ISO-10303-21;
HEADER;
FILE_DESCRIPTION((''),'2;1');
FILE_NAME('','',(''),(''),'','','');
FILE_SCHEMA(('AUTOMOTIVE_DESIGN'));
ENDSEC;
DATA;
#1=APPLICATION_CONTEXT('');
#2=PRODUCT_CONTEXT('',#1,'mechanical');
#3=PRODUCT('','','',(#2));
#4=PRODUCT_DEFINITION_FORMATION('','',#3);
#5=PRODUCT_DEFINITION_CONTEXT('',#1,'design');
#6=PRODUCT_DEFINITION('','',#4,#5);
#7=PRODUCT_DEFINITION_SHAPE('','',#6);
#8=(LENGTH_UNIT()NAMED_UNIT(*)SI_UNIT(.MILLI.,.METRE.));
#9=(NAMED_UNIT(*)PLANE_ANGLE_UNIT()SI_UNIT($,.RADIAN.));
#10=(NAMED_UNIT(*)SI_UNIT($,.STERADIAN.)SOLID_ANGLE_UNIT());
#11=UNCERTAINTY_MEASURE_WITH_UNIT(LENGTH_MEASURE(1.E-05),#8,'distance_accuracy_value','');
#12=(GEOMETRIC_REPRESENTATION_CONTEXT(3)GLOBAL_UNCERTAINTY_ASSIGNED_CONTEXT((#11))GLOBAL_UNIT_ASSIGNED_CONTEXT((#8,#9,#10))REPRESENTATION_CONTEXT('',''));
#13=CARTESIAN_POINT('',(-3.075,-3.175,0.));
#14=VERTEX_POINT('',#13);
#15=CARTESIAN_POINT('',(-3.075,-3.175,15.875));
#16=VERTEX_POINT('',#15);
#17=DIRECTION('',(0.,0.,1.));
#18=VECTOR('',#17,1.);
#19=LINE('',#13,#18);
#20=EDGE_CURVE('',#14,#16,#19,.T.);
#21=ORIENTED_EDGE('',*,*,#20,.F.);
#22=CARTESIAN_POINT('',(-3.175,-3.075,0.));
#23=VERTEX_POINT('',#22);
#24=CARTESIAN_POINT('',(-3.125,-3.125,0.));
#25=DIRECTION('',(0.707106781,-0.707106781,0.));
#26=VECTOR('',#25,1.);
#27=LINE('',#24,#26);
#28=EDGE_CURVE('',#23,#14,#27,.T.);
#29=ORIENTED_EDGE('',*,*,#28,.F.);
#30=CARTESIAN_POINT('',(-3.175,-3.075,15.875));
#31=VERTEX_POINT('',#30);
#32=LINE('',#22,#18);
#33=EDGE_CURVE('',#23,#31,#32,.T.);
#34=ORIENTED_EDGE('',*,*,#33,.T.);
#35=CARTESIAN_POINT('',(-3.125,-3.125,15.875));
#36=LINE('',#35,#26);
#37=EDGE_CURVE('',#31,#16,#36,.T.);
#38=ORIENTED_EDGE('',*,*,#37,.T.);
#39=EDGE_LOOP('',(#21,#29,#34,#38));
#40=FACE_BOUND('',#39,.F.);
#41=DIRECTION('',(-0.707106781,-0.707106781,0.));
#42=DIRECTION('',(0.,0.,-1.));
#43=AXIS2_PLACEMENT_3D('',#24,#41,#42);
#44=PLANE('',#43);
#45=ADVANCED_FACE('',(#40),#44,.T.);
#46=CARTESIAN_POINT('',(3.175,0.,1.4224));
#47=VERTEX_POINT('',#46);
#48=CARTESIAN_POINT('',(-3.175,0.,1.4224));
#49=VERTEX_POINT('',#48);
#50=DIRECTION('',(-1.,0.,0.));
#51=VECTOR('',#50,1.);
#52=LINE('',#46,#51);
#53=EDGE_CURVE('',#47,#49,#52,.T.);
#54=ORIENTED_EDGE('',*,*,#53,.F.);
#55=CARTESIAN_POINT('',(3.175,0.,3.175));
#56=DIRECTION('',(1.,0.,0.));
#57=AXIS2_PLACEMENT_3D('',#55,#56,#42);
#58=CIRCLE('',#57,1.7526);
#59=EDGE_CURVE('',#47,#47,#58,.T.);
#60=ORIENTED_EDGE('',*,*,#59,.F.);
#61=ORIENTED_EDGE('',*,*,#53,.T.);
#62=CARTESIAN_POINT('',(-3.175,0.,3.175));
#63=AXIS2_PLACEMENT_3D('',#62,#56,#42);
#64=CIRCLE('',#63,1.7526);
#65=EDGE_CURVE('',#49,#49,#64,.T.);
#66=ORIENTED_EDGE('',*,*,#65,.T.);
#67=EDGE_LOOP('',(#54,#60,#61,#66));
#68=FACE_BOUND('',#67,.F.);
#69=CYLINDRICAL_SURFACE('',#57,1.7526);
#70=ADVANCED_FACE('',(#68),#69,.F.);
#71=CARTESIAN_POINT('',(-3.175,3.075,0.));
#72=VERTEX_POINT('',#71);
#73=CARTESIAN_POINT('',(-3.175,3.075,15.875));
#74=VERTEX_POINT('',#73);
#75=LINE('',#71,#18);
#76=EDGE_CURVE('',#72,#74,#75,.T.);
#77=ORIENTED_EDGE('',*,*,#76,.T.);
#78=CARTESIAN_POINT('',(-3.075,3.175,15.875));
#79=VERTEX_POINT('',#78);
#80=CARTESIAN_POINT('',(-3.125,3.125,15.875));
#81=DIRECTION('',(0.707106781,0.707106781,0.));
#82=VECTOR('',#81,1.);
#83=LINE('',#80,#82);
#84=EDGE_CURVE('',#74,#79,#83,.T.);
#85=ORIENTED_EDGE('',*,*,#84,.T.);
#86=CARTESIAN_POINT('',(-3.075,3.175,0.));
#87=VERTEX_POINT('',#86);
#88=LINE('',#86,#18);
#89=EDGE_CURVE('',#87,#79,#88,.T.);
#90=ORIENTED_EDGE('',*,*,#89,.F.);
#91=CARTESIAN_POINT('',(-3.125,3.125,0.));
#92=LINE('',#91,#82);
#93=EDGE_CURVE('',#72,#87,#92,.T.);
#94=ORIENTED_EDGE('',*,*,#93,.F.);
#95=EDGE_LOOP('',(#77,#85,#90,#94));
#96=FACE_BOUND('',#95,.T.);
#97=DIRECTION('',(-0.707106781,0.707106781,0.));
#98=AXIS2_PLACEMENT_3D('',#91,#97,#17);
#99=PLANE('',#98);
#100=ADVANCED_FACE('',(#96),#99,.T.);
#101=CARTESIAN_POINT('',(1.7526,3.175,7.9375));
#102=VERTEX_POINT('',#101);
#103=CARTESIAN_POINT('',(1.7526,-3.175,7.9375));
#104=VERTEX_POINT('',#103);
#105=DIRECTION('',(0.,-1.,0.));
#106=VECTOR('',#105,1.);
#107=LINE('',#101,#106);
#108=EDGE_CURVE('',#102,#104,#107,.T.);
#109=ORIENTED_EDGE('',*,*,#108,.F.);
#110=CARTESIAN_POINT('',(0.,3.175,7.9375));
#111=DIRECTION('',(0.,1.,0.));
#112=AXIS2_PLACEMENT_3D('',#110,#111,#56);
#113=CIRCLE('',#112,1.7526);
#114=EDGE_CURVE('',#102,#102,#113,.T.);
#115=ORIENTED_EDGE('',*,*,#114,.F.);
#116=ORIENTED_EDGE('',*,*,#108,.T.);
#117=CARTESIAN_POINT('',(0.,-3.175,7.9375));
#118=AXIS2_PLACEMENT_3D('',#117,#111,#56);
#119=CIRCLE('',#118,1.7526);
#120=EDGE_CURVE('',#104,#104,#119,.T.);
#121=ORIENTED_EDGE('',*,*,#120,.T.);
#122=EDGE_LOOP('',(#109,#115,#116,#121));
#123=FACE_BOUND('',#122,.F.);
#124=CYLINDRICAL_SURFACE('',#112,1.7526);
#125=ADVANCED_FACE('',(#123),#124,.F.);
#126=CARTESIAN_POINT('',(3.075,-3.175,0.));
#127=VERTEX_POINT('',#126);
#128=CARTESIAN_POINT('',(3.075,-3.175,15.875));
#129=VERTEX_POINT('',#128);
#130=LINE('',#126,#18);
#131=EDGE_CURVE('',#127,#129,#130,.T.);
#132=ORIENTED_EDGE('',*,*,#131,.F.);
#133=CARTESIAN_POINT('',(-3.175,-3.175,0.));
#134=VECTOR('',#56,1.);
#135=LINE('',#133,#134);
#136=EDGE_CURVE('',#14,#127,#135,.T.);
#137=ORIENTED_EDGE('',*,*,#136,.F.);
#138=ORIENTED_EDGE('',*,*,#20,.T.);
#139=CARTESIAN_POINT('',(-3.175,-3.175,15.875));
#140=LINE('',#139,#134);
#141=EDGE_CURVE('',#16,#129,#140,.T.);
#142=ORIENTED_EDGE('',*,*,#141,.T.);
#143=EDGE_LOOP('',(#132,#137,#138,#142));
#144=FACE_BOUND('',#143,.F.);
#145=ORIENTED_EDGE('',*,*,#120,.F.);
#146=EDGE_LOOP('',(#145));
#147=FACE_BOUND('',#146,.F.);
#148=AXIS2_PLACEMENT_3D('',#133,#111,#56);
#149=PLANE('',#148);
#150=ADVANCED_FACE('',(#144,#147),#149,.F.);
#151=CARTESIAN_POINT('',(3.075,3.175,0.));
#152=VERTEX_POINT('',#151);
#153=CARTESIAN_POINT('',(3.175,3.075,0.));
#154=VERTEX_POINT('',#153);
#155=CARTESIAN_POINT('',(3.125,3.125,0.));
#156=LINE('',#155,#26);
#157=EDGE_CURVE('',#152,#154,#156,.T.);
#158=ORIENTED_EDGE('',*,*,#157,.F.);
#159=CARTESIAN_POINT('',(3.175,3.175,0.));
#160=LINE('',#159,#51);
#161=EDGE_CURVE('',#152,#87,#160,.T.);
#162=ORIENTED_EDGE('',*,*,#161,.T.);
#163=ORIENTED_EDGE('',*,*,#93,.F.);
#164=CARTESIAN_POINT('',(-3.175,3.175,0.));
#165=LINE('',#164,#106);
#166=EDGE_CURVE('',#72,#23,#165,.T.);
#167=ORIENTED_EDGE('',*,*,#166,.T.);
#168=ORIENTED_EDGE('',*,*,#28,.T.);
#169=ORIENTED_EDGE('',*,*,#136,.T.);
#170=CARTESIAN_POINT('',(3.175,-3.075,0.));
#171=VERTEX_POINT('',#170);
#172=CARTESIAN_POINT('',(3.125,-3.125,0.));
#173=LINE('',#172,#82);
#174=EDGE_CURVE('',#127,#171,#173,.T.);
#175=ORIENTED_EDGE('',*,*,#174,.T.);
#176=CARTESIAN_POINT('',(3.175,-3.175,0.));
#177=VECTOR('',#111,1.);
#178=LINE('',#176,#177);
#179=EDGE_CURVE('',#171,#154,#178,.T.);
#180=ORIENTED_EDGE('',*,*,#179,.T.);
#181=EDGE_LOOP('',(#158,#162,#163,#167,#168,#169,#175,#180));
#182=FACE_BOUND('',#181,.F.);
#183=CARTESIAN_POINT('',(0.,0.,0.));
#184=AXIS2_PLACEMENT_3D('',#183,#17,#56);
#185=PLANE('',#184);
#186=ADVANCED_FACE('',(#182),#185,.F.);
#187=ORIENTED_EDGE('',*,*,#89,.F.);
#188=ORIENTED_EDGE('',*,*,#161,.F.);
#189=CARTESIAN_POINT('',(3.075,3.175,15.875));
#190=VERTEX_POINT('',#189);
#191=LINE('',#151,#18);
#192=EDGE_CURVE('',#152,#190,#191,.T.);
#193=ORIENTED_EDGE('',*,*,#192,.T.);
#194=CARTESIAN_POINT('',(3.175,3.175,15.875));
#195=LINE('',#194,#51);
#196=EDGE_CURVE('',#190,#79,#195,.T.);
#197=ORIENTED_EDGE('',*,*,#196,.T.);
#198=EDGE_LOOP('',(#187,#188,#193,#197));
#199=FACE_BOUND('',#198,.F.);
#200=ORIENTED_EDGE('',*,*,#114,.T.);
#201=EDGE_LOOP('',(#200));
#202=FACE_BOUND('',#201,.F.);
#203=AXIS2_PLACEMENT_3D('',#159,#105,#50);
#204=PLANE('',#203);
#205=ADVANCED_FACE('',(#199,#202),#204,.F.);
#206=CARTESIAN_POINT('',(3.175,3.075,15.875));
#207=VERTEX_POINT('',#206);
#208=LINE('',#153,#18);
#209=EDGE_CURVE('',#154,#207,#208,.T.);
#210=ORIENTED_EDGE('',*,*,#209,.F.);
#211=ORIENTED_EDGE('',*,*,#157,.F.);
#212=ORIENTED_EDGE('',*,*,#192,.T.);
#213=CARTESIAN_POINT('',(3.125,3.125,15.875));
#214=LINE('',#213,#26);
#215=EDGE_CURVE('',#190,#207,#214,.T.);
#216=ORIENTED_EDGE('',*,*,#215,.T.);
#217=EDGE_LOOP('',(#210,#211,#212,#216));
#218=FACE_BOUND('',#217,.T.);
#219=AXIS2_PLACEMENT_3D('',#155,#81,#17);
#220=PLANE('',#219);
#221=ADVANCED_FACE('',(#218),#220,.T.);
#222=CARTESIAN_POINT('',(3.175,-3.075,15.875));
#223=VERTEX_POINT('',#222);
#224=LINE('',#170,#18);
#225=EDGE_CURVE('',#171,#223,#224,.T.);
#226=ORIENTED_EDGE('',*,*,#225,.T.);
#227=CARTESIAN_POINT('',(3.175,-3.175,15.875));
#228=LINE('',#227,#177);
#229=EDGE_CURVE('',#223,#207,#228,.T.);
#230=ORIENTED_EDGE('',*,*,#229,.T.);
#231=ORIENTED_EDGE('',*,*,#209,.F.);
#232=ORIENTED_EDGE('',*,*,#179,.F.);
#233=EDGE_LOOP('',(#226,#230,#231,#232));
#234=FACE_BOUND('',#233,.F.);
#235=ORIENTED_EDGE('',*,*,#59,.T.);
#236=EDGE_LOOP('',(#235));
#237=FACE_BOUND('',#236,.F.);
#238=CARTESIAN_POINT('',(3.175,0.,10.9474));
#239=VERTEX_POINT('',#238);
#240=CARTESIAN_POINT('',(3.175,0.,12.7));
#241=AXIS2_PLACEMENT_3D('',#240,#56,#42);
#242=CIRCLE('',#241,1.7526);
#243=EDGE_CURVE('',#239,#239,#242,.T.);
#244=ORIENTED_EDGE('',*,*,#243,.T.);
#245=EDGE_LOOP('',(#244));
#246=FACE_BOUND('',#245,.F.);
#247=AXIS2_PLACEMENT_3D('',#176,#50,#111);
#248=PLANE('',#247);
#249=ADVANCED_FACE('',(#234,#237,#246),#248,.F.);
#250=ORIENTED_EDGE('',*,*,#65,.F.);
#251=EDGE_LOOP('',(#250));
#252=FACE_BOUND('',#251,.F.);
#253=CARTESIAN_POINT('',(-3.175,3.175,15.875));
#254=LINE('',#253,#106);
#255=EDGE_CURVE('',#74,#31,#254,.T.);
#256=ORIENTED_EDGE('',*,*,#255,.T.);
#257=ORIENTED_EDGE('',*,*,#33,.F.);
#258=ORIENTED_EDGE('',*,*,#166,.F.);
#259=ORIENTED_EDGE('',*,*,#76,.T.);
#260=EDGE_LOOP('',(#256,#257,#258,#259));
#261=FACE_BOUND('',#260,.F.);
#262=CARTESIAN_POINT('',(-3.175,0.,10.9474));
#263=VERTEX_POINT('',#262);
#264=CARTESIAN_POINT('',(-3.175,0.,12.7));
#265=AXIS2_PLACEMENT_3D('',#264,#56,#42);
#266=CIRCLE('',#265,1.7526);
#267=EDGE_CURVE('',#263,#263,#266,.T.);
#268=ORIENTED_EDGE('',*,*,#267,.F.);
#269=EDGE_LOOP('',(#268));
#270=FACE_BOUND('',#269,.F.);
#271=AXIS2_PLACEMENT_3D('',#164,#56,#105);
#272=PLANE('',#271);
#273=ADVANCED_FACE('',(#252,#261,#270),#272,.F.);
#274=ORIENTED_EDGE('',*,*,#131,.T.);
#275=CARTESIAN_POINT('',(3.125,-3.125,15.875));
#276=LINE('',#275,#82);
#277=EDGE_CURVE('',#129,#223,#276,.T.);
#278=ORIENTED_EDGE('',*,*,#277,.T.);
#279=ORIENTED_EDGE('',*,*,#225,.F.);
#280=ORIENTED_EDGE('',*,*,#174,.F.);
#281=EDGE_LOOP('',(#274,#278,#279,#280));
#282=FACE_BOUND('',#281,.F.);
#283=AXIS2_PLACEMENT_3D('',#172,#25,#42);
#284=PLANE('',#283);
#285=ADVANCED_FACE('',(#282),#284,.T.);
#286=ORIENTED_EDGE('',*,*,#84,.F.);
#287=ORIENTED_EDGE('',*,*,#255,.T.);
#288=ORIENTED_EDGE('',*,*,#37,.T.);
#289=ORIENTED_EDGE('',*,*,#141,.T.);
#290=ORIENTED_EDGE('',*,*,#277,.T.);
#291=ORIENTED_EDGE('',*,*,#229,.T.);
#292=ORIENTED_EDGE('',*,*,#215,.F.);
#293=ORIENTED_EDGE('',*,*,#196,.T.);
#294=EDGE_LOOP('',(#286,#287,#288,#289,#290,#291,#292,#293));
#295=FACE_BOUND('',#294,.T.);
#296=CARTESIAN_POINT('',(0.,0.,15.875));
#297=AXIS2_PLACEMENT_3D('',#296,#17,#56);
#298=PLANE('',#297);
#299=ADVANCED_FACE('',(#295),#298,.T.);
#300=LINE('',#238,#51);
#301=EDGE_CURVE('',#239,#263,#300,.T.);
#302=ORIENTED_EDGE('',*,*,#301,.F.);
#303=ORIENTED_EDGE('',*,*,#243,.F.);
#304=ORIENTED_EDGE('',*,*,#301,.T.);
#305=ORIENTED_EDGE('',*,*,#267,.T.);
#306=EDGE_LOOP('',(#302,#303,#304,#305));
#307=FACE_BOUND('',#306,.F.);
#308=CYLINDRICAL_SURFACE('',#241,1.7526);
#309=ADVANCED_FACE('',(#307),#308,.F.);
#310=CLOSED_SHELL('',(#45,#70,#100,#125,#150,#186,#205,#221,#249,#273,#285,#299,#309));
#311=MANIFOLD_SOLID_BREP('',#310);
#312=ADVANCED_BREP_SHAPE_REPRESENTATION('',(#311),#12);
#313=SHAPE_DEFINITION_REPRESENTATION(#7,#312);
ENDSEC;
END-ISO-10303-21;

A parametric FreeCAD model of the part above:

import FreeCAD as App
import Part
import Sketcher
Q = App.Units.Quantity


def edges_at(feature, points):
    """Names of the edges that pass closest to the given points."""
    edges = feature.Shape.Edges
    near = lambda p: min(range(len(edges)), key=lambda i: edges[i].distToShape(Part.Vertex(*p))[0])
    return sorted({f"Edge{near(p) + 1}" for p in points})


def add_polygon(sketch, points):
    """Adds a closed chain of lines whose ends are joined by coincident constraints."""
    first, n = sketch.GeometryCount, len(points)
    for a, b in zip(points, points[1:] + points[:1]):
        sketch.addGeometry(Part.LineSegment(App.Vector(*a, 0), App.Vector(*b, 0)), False)
    for i in range(n):
        sketch.addConstraint(Sketcher.Constraint("Coincident", first + i, 2, first + (i + 1) % n, 1))

doc = App.newDocument("Part")
body = doc.addObject("PartDesign::Body", "Body")

# Sketch on XY plane
sketch1 = doc.addObject("Sketcher::SketchObject", "Sketch")
body.addObject(sketch1)
sketch1.AttachmentSupport = (doc.XY_Plane, [""])
sketch1.MapMode = "FlatFace"
add_polygon(sketch1, [(-3, 3), (-3, -3), (3, -3), (3, 3)])  # lines 0-3
sketch1.addConstraint(Sketcher.Constraint("Vertical", 0))
sketch1.addConstraint(Sketcher.Constraint("Horizontal", 1))
sketch1.addConstraint(Sketcher.Constraint("Vertical", 2))
sketch1.addConstraint(Sketcher.Constraint("Horizontal", 3))
sketch1.addConstraint(Sketcher.Constraint("Symmetric", 0, 2, 2, 2, -1, 1))
sketch1.addConstraint(Sketcher.Constraint("Equal", 3, 0))
sketch1.addConstraint(Sketcher.Constraint("DistanceX", 1, 1, 1, 2, Q("0.25 in")))
pad1 = doc.addObject("PartDesign::Pad", "Pad")
body.addObject(pad1)
pad1.Profile = sketch1
pad1.Length = Q("0.625 in")

# Sketch on XZ plane
sketch2 = doc.addObject("Sketcher::SketchObject", "Sketch001")
body.addObject(sketch2)
sketch2.AttachmentSupport = (doc.XZ_Plane, [""])
sketch2.MapMode = "FlatFace"
sketch2.AttachmentOffset = App.Placement(App.Vector(0, 0, -0.125 * 25.4), App.Rotation())
sketch2.addGeometry(Part.Circle(App.Vector(0, 7.9, 0), App.Vector(0, 0, 1), 1.8), False)
sketch2.addConstraint(Sketcher.Constraint("PointOnObject", 0, 3, -2))
sketch2.addConstraint(Sketcher.Constraint("Diameter", 0, Q("0.138 in")))
sketch2.addConstraint(Sketcher.Constraint("DistanceY", -1, 1, 0, 3, Q("0.3125 in")))
pocket1 = doc.addObject("PartDesign::Pocket", "Pocket")
body.addObject(pocket1)
pocket1.Profile = sketch2
pocket1.Type = "ThroughAll"
pocket1.Reversed = True

# Sketch on YZ plane
sketch3 = doc.addObject("Sketcher::SketchObject", "Sketch002")
body.addObject(sketch3)
sketch3.AttachmentSupport = (doc.YZ_Plane, [""])
sketch3.MapMode = "FlatFace"
sketch3.AttachmentOffset = App.Placement(App.Vector(0, 0, 0.125 * 25.4), App.Rotation())
sketch3.addGeometry(Part.Circle(App.Vector(0, 12.7, 0), App.Vector(0, 0, 1), 1.8), False)
sketch3.addGeometry(Part.Circle(App.Vector(0, 3.2, 0), App.Vector(0, 0, 1), 1.8), False)
sketch3.addGeometry(Part.Circle(App.Vector(0, -6.3, 0), App.Vector(0, 0, 1), 1.8), False)
sketch3.addGeometry(Part.Circle(App.Vector(0, -15.9, 0), App.Vector(0, 0, 1), 1.8), False)
sketch3.addConstraint(Sketcher.Constraint("Equal", 0, 1))
sketch3.addConstraint(Sketcher.Constraint("Equal", 1, 2))
sketch3.addConstraint(Sketcher.Constraint("Equal", 2, 3))
sketch3.addConstraint(Sketcher.Constraint("PointOnObject", 0, 3, -2))
sketch3.addConstraint(Sketcher.Constraint("PointOnObject", 1, 3, -2))
sketch3.addConstraint(Sketcher.Constraint("PointOnObject", 2, 3, -2))
sketch3.addConstraint(Sketcher.Constraint("PointOnObject", 3, 3, -2))
sketch3.addConstraint(Sketcher.Constraint("Diameter", 0, Q("0.138 in")))
sketch3.addConstraint(Sketcher.Constraint("DistanceY", -1, 1, 1, 3, Q("0.125 in")))
sketch3.addConstraint(Sketcher.Constraint("DistanceY", 1, 3, 0, 3, Q("0.375 in")))
sketch3.addConstraint(Sketcher.Constraint("DistanceY", 2, 3, 1, 3, Q("0.375 in")))
sketch3.addConstraint(Sketcher.Constraint("DistanceY", 3, 3, 2, 3, Q("0.375 in")))
pocket2 = doc.addObject("PartDesign::Pocket", "Pocket001")
body.addObject(pocket2)
pocket2.Profile = sketch3
pocket2.Type = "ThroughAll"
doc.recompute()

chamfer = doc.addObject("PartDesign::Chamfer", "Chamfer")
body.addObject(chamfer)
chamfer.Base = (pocket2, edges_at(pocket2, [
    (-3.175, 3.175, 7.938),
    (3.175, 3.175, 7.938),
    (3.175, -3.175, 7.938),
    (-3.175, -3.175, 7.938),
]))
chamfer.Size = 0.1

doc.recompute()
